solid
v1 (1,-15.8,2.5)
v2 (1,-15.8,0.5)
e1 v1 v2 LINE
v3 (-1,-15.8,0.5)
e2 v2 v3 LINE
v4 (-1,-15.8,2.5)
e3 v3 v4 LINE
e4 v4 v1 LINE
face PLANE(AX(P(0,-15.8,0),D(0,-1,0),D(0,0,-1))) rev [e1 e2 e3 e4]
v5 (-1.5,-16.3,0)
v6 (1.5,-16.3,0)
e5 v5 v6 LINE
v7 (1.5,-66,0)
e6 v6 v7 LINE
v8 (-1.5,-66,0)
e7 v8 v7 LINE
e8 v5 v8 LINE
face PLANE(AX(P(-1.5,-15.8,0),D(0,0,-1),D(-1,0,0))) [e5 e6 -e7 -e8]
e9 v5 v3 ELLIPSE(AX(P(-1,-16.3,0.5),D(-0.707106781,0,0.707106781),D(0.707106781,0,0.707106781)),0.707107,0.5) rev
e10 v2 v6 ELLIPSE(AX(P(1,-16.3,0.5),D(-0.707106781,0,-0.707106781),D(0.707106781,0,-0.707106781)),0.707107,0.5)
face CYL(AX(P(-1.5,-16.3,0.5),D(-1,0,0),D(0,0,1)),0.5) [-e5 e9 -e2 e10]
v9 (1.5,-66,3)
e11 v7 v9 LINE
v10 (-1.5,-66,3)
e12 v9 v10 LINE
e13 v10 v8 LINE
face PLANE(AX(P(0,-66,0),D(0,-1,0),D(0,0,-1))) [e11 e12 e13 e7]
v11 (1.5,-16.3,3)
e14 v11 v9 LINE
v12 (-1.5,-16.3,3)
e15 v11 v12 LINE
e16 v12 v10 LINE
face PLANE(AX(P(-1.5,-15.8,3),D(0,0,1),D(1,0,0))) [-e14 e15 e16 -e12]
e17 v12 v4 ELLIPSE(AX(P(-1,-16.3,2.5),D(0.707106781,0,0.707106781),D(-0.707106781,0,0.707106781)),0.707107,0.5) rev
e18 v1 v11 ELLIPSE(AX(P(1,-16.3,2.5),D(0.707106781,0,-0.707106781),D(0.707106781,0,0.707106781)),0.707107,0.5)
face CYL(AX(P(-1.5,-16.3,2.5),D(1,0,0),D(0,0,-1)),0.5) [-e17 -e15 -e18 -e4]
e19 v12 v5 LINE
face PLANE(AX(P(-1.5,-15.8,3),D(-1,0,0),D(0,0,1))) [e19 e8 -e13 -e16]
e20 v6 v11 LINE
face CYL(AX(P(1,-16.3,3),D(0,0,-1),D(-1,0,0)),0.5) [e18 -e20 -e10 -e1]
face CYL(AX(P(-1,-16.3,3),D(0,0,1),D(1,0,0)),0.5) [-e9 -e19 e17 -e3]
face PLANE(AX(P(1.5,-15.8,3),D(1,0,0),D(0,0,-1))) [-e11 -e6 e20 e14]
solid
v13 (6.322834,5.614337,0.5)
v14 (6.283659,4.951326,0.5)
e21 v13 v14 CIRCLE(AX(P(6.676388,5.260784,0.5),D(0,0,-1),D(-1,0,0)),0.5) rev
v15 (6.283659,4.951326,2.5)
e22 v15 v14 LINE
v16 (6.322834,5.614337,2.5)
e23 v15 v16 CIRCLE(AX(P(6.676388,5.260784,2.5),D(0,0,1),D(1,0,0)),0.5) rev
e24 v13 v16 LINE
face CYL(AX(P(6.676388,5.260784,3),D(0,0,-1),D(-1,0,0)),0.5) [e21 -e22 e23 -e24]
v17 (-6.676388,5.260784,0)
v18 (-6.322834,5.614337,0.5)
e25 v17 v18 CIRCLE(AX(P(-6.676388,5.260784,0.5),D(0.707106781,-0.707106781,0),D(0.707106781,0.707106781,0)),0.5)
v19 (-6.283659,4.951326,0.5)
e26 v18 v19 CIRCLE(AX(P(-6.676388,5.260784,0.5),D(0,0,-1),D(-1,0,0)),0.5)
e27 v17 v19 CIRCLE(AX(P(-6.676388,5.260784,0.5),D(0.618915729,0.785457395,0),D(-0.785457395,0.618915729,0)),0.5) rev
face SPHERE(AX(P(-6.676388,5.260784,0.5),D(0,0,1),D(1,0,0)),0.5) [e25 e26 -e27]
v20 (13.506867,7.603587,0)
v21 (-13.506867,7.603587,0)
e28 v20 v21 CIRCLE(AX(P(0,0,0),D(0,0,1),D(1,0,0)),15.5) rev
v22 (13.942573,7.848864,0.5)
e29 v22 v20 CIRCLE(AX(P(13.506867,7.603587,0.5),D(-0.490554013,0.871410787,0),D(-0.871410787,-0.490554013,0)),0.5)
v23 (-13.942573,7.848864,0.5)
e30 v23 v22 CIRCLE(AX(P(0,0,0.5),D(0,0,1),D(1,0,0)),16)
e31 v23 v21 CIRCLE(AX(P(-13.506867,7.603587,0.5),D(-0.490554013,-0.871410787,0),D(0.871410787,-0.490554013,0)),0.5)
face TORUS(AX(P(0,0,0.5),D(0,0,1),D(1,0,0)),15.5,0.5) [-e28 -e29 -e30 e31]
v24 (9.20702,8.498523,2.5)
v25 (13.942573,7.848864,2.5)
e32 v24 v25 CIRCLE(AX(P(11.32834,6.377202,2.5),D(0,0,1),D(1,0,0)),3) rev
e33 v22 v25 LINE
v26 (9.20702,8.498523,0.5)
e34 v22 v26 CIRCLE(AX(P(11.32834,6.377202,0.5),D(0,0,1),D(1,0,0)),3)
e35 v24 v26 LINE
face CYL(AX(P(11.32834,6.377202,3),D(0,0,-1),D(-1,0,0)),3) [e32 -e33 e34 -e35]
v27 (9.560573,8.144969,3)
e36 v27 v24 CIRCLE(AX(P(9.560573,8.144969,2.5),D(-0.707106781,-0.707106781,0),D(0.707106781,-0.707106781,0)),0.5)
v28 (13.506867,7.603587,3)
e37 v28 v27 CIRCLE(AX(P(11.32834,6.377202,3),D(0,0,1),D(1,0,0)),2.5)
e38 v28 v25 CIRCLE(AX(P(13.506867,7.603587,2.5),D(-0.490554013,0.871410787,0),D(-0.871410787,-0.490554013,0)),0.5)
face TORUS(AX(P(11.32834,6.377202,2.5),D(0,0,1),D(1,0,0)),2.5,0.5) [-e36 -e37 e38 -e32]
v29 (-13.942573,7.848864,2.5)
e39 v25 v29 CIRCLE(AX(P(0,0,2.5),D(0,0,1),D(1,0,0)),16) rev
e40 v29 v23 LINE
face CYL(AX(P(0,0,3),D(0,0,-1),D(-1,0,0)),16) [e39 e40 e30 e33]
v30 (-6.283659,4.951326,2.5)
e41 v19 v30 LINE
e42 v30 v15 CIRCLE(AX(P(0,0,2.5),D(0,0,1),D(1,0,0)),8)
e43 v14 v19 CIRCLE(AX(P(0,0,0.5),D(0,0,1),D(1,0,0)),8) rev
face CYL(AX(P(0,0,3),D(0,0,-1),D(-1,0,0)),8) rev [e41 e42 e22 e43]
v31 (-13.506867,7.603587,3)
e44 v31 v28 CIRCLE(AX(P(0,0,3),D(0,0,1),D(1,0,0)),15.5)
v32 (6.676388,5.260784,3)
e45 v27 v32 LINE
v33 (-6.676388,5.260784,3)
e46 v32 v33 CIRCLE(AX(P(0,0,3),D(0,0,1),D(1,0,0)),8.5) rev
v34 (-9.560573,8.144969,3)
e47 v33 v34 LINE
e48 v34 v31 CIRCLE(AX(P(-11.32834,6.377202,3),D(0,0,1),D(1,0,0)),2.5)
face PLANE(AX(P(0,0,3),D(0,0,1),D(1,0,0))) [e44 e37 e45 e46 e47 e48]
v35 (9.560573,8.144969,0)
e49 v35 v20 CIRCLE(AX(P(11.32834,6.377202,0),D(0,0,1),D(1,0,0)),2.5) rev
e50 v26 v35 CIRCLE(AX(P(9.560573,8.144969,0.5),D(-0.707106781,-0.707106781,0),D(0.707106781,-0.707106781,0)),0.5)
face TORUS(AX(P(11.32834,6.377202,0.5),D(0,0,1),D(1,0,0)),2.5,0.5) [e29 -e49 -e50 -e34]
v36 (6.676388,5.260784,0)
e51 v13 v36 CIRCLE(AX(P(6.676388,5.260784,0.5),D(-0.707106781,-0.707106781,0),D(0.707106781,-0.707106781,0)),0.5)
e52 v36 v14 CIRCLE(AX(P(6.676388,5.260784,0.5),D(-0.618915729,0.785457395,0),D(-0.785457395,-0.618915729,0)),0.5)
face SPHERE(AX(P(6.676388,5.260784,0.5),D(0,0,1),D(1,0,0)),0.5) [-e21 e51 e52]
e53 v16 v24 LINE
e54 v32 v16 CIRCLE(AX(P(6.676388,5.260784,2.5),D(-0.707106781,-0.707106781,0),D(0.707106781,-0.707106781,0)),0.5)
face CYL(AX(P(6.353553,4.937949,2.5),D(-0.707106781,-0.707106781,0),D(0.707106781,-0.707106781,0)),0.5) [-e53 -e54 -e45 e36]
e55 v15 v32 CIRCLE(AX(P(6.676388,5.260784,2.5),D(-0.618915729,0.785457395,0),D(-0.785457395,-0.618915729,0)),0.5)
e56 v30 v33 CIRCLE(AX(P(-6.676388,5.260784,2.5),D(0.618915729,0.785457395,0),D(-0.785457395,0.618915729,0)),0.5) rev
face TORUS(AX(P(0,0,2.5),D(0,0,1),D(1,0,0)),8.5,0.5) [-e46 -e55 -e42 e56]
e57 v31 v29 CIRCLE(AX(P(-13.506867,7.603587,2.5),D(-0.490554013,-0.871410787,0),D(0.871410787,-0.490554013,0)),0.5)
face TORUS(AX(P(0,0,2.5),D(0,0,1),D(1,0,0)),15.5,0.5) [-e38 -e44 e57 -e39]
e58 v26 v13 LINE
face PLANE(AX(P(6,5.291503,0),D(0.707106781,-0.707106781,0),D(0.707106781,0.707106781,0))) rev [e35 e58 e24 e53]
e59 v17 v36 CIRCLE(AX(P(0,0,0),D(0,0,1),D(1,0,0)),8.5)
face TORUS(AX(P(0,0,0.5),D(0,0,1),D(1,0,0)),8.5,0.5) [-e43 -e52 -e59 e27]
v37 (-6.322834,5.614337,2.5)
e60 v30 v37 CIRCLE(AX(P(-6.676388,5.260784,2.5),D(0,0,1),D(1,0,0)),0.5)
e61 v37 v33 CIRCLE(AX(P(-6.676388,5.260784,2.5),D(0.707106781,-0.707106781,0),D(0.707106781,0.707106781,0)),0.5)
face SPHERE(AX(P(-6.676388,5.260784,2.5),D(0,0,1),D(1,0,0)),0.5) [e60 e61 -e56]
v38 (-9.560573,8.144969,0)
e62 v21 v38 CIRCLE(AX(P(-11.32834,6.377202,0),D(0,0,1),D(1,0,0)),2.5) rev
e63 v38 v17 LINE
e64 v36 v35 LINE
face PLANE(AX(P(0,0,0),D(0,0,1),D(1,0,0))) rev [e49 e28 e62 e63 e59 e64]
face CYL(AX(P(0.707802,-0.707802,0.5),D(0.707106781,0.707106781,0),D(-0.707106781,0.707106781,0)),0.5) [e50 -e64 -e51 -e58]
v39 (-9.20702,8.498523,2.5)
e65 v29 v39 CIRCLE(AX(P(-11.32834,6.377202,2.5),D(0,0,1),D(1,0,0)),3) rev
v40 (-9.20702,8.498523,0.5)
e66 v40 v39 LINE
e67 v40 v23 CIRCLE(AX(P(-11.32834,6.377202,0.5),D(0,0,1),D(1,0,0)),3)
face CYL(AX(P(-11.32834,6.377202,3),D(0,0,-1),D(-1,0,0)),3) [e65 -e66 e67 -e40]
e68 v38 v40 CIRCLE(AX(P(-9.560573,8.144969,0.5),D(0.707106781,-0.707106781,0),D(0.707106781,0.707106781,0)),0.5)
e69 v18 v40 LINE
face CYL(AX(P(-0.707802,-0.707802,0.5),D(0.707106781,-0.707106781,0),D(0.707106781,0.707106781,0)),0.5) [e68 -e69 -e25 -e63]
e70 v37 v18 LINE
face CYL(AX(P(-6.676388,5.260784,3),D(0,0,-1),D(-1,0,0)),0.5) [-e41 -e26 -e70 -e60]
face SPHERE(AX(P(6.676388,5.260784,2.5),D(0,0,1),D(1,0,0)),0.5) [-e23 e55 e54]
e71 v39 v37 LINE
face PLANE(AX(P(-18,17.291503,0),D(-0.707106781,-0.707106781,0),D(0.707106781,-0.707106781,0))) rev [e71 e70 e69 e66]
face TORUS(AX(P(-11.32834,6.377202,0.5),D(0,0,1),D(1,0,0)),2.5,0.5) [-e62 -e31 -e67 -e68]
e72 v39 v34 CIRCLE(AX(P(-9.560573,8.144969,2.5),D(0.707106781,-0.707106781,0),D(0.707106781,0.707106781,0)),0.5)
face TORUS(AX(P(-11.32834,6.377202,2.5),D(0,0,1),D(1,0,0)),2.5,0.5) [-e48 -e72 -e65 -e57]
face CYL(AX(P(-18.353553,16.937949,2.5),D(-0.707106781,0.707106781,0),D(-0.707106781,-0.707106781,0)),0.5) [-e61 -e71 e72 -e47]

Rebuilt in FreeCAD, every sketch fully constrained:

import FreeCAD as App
import Part
import Sketcher


def edges_at(feature, points):
    """Names of the edges that pass closest to the given points."""
    edges = feature.Shape.Edges
    near = lambda p: min(range(len(edges)), key=lambda i: edges[i].distToShape(Part.Vertex(*p))[0])
    return sorted({f"Edge{near(p) + 1}" for p in points})


def add_polygon(sketch, points):
    """Adds a closed chain of lines whose ends are joined by coincident constraints."""
    first, n = sketch.GeometryCount, len(points)
    for a, b in zip(points, points[1:] + points[:1]):
        sketch.addGeometry(Part.LineSegment(App.Vector(*a, 0), App.Vector(*b, 0)), False)
    for i in range(n):
        sketch.addConstraint(Sketcher.Constraint("Coincident", first + i, 2, first + (i + 1) % n, 1))

doc = App.newDocument("Part")
body = doc.addObject("PartDesign::Body", "Body")

sketch1 = doc.addObject("Sketcher::SketchObject", "Sketch")
body.addObject(sketch1)
sketch1.AttachmentSupport = (doc.XY_Plane, [""])
sketch1.MapMode = "FlatFace"
sketch1.addGeometry(Part.Circle(App.Vector(0, 0, 0), App.Vector(0, 0, 1), 16), False)
sketch1.addGeometry(Part.Circle(App.Vector(0, 0, 0), App.Vector(0, 0, 1), 8), False)
sketch1.addConstraint(Sketcher.Constraint("Coincident", 0, 3, -1, 1))
sketch1.addConstraint(Sketcher.Constraint("Coincident", 1, 3, -1, 1))
sketch1.addConstraint(Sketcher.Constraint("Diameter", 0, 32.0))
sketch1.addConstraint(Sketcher.Constraint("Diameter", 1, 16.0))
pad1 = doc.addObject("PartDesign::Pad", "Pad")
body.addObject(pad1)
pad1.Profile = sketch1
pad1.Length = 3

sketch2 = doc.addObject("Sketcher::SketchObject", "Sketch001")
body.addObject(sketch2)
sketch2.AttachmentSupport = (doc.XY_Plane, [""])
sketch2.MapMode = "FlatFace"
sketch2.AttachmentOffset = App.Placement(App.Vector(0, 0, 3), App.Rotation())
add_polygon(sketch2, [(-6, 5), (6, 5), (18, 17), (-18, 17)])
sketch2.addConstraint(Sketcher.Constraint("Horizontal", 0))
sketch2.addConstraint(Sketcher.Constraint("Horizontal", 2))
sketch2.addConstraint(Sketcher.Constraint("Perpendicular", 1, 3))
sketch2.addConstraint(Sketcher.Constraint("Equal", 1, 3))
sketch2.addConstraint(Sketcher.Constraint("DistanceX", 0, 1, 0, 2, 12.0))
sketch2.addConstraint(Sketcher.Constraint("DistanceX", 2, 2, 2, 1, 36.0))
sketch2.addConstraint(Sketcher.Constraint("DistanceX", -1, 1, 0, 2, 6.0))
sketch2.addConstraint(Sketcher.Constraint("DistanceY", -1, 1, 0, 2, 5.291503))
pocket1 = doc.addObject("PartDesign::Pocket", "Pocket")
body.addObject(pocket1)
pocket1.Profile = sketch2
pocket1.Length = 3
doc.recompute()

fillet = doc.addObject("PartDesign::Fillet", "Fillet")
body.addObject(fillet)
fillet.Base = (pocket1, edges_at(pocket1, [(-11.662, 10.954, 1.5), (11.662, 10.954, 1.5)]))
fillet.Radius = 3
doc.recompute()

fillet2 = doc.addObject("PartDesign::Fillet", "Fillet001")
body.addObject(fillet2)
fillet2.Base = (fillet, edges_at(fillet, [
    (0, -8, 0),
    (-6, 5.292, 1.5),
    (7.604, 6.895, 0),
    (7.604, 6.895, 3),
    (6, 5.292, 1.5),
    (0, -16, 3),
    (0, -16, 0),
    (-7.604, 6.895, 0),
    (11.736, 9.349, 0),
    (-11.736, 9.349, 0),
    (-7.604, 6.895, 3),
    (11.736, 9.349, 3),
    (-11.736, 9.349, 3),
    (0, -8, 3),
]))
fillet2.Radius = 0.5
body2 = doc.addObject("PartDesign::Body", "Body001")

sketch3 = doc.addObject("Sketcher::SketchObject", "Sketch002")
body2.addObject(sketch3)
sketch3.AttachmentSupport = (doc.getObject("XZ_Plane001"), [""])
sketch3.MapMode = "FlatFace"
sketch3.AttachmentOffset = App.Placement(App.Vector(0, 0, 16), App.Rotation())
add_polygon(sketch3, [(1.5, 0), (1.5, 3), (-1.5, 3), (-1.5, 0)])
sketch3.addConstraint(Sketcher.Constraint("Vertical", 0))
sketch3.addConstraint(Sketcher.Constraint("Horizontal", 1))
sketch3.addConstraint(Sketcher.Constraint("Vertical", 2))
sketch3.addConstraint(Sketcher.Constraint("Horizontal", 3))
sketch3.addConstraint(Sketcher.Constraint("Symmetric", 2, 2, 3, 2, -1, 1))
sketch3.addConstraint(Sketcher.Constraint("Equal", 3, 0))
sketch3.addConstraint(Sketcher.Constraint("DistanceX", 1, 2, 1, 1, 3.0))
pad2 = doc.addObject("PartDesign::Pad", "Pad001")
body2.addObject(pad2)
pad2.Profile = sketch3
pad2.Type = "TwoLengths"
pad2.Length = 50
pad2.Length2 = 0.2
doc.recompute()

fillet3 = doc.addObject("PartDesign::Fillet", "Fillet002")
body2.addObject(fillet3)
fillet3.Base = (pad2, edges_at(pad2, [
    (1.5, -15.8, 1.5),
    (0, -15.8, 3),
    (-1.5, -15.8, 1.5),
    (0, -15.8, 0),
]))
fillet3.Radius = 0.5

doc.recompute()
